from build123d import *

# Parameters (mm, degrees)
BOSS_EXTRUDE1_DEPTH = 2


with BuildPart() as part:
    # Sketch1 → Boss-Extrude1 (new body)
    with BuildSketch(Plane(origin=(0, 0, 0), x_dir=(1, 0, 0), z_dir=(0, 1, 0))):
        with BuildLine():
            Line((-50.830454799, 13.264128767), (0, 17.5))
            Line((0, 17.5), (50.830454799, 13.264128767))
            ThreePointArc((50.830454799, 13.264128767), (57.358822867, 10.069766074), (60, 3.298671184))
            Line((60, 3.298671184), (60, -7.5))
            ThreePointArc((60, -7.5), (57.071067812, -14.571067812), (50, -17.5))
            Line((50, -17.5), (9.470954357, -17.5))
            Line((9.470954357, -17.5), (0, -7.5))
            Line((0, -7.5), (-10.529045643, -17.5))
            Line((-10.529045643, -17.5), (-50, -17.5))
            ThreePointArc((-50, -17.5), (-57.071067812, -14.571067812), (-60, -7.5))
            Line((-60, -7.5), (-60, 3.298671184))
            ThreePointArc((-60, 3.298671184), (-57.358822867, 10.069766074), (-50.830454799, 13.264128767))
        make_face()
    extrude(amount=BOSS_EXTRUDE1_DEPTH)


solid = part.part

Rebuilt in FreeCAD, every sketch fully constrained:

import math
import FreeCAD as App
import Part
import Sketcher

V = App.Vector

doc = App.newDocument("Part")
body = doc.addObject("PartDesign::Body", "Body")

# Sketch on XZ plane
sketch1 = doc.addObject("Sketcher::SketchObject", "Sketch")
body.addObject(sketch1)
sketch1.AttachmentSupport = (doc.XZ_Plane, [""])
sketch1.MapMode = "FlatFace"
sketch1.addGeometry(Part.LineSegment(V(0, -18, 0), V(-51, -13, 0)), False)
sketch1.addGeometry(Part.ArcOfCircle(Part.Circle(V(-50, -3, 0), V(0, 0, 1), 10), math.radians(-180), math.radians(-95)), False)
sketch1.addGeometry(Part.LineSegment(V(-60, -3, 0), V(-60, 8, 0)), False)
sketch1.addGeometry(Part.ArcOfCircle(Part.Circle(V(-50, 8, 0), V(0, 0, 1), 10), math.radians(90), math.radians(180)), False)
sketch1.addGeometry(Part.LineSegment(V(-50, 18, 0), V(-11, 18, 0)), False)
sketch1.addGeometry(Part.LineSegment(V(-11, 18, 0), V(0, 8, 0)), False)
sketch1.addGeometry(Part.LineSegment(V(0, 8, 0), V(9, 18, 0)), False)
sketch1.addGeometry(Part.LineSegment(V(9, 18, 0), V(50, 18, 0)), False)
sketch1.addGeometry(Part.ArcOfCircle(Part.Circle(V(50, 8, 0), V(0, 0, 1), 10), math.radians(0), math.radians(90)), False)
sketch1.addGeometry(Part.LineSegment(V(60, 8, 0), V(60, -3, 0)), False)
sketch1.addGeometry(Part.ArcOfCircle(Part.Circle(V(50, -3, 0), V(0, 0, 1), 10), math.radians(-85), math.radians(0)), False)
sketch1.addGeometry(Part.LineSegment(V(51, -13, 0), V(0, -18, 0)), False)
sketch1.addConstraint(Sketcher.Constraint("Tangent", 0, 2, 1, 2))
sketch1.addConstraint(Sketcher.Constraint("Tangent", 1, 1, 2, 1))
sketch1.addConstraint(Sketcher.Constraint("Tangent", 2, 2, 3, 2))
sketch1.addConstraint(Sketcher.Constraint("Tangent", 3, 1, 4, 1))
sketch1.addConstraint(Sketcher.Constraint("Coincident", 4, 2, 5, 1))
sketch1.addConstraint(Sketcher.Constraint("Coincident", 5, 2, 6, 1))
sketch1.addConstraint(Sketcher.Constraint("Coincident", 6, 2, 7, 1))
sketch1.addConstraint(Sketcher.Constraint("Tangent", 7, 2, 8, 2))
sketch1.addConstraint(Sketcher.Constraint("Tangent", 8, 1, 9, 1))
sketch1.addConstraint(Sketcher.Constraint("Tangent", 9, 2, 10, 2))
sketch1.addConstraint(Sketcher.Constraint("Tangent", 10, 1, 11, 1))
sketch1.addConstraint(Sketcher.Constraint("Coincident", 11, 2, 0, 1))
sketch1.addConstraint(Sketcher.Constraint("Vertical", 2))
sketch1.addConstraint(Sketcher.Constraint("Horizontal", 4))
sketch1.addConstraint(Sketcher.Constraint("Horizontal", 7))
sketch1.addConstraint(Sketcher.Constraint("Vertical", 9))
sketch1.addConstraint(Sketcher.Constraint("Equal", 1, 3))
sketch1.addConstraint(Sketcher.Constraint("Equal", 3, 8))
sketch1.addConstraint(Sketcher.Constraint("Equal", 8, 10))
sketch1.addConstraint(Sketcher.Constraint("Symmetric", 3, 3, 8, 3, -2))
sketch1.addConstraint(Sketcher.Constraint("Symmetric", 0, 2, 10, 1, -2))
sketch1.addConstraint(Sketcher.Constraint("PointOnObject", 5, 2, -2))
sketch1.addConstraint(Sketcher.Constraint("Horizontal", 2, 2, 5, 2))
sketch1.addConstraint(Sketcher.Constraint("Radius", 1, 10.0))
sketch1.addConstraint(Sketcher.Constraint("DistanceX", 1, 3, -1, 1, 50.0))
sketch1.addConstraint(Sketcher.Constraint("DistanceX", 4, 2, 6, 2, 20.0))
sketch1.addConstraint(Sketcher.Constraint("DistanceY", 11, 2, 5, 2, 25.0))
sketch1.addConstraint(Sketcher.Constraint("DistanceY", -1, 1, 3, 3, 7.5))
sketch1.addConstraint(Sketcher.Constraint("DistanceY", 2, 1, 2, 2, 10.798671))
sketch1.addConstraint(Sketcher.Constraint("DistanceX", 4, 1, 4, 2, 39.470954))
pad1 = doc.addObject("PartDesign::Pad", "Pad")
body.addObject(pad1)
pad1.Profile = sketch1
pad1.Length = 2
pad1.Reversed = True

doc.recompute()
